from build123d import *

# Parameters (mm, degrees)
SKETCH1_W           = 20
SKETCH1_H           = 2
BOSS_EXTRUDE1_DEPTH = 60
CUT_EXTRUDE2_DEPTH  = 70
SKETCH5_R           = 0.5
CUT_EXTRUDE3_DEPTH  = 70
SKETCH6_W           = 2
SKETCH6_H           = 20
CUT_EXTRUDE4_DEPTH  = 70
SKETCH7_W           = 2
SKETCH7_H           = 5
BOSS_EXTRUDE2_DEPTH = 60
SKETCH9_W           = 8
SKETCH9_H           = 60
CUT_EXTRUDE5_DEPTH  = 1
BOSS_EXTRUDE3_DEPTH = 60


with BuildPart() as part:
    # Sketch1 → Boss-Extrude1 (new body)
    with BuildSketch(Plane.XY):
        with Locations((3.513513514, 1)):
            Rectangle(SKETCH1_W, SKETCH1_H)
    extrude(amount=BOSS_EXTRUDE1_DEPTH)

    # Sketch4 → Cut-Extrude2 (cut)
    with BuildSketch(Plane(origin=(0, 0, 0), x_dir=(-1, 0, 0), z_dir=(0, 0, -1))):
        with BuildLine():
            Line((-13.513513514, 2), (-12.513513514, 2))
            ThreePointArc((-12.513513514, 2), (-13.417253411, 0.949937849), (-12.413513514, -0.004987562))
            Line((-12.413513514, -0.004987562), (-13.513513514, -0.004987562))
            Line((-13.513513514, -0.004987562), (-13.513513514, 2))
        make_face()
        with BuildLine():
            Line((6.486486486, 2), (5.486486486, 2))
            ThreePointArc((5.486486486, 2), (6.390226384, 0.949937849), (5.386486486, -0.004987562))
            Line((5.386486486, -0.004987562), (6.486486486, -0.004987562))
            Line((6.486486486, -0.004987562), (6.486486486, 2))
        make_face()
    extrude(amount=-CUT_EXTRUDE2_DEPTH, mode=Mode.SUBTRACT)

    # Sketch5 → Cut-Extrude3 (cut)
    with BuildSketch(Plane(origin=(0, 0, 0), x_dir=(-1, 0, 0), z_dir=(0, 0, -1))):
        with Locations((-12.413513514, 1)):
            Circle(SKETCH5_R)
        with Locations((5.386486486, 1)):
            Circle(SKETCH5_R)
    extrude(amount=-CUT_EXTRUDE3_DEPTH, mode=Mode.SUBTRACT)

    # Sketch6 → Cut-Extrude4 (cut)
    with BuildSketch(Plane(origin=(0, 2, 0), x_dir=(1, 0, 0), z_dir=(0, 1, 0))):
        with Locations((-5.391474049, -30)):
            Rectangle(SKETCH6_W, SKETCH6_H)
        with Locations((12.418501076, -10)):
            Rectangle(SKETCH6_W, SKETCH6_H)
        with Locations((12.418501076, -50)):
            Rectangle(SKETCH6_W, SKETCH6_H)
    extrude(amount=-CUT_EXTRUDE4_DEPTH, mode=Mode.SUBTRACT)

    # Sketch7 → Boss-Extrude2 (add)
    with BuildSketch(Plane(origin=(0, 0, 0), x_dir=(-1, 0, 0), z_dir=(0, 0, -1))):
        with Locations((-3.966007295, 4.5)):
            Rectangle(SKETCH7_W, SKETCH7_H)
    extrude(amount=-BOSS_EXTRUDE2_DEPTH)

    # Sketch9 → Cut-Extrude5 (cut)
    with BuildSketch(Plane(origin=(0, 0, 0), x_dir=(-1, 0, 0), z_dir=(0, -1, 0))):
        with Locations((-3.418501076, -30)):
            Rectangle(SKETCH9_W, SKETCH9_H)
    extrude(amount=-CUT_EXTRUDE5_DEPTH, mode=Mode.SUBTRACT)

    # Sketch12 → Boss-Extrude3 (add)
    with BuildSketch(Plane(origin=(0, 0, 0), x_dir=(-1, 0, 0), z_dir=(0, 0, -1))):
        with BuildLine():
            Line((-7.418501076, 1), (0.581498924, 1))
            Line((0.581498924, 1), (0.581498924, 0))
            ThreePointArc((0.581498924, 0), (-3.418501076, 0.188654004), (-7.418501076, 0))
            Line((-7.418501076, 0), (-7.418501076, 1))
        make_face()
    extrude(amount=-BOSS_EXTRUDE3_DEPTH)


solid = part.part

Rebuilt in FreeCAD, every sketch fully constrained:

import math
import FreeCAD as App
import Part
import Sketcher
from FreeCAD import Vector
Q = App.Units.Quantity

doc = App.newDocument("Part")
body = doc.addObject("PartDesign::Body", "Body")

# Sketch on XY plane
sketch1 = body.newObject("Sketcher::SketchObject", "Sketch")
sketch1.AttachmentSupport = (doc.getObject("XY_Plane"), [""])
sketch1.MapMode = "FlatFace"
sketch1.addGeometry(Part.LineSegment(Vector(-6.486486, 2, 0), Vector(-6.486486, 0, 0)), False)
sketch1.addGeometry(Part.LineSegment(Vector(-6.486486, 0, 0), Vector(13.513514, 0, 0)), False)
sketch1.addGeometry(Part.LineSegment(Vector(13.513514, 0, 0), Vector(13.513514, 2, 0)), False)
sketch1.addGeometry(Part.LineSegment(Vector(13.513514, 2, 0), Vector(-6.486486, 2, 0)), False)
sketch1.addConstraint(Sketcher.Constraint("Coincident", 0, 2, 1, 1))
sketch1.addConstraint(Sketcher.Constraint("Coincident", 1, 2, 2, 1))
sketch1.addConstraint(Sketcher.Constraint("Coincident", 2, 2, 3, 1))
sketch1.addConstraint(Sketcher.Constraint("Coincident", 3, 2, 0, 1))
sketch1.addConstraint(Sketcher.Constraint("Vertical", 0))
sketch1.addConstraint(Sketcher.Constraint("Horizontal", 1))
sketch1.addConstraint(Sketcher.Constraint("Vertical", 2))
sketch1.addConstraint(Sketcher.Constraint("Horizontal", 3))
sketch1.addConstraint(Sketcher.Constraint("PointOnObject", 0, 2, -1))
sketch1.addConstraint(Sketcher.Constraint("DistanceX", 1, 1, 1, 2, Q("20 mm")))
sketch1.addConstraint(Sketcher.Constraint("DistanceY", 0, 2, 0, 1, Q("2 mm")))
sketch1.addConstraint(Sketcher.Constraint("DistanceX", 0, 2, -1, 1, Q("6.486486 mm")))
pad1 = body.newObject("PartDesign::Pad", "Pad")
pad1.Profile = sketch1
pad1.Length = 60

# Sketch on XY plane
sketch2 = body.newObject("Sketcher::SketchObject", "Sketch001")
sketch2.AttachmentSupport = (doc.getObject("XY_Plane"), [""])
sketch2.MapMode = "FlatFace"
sketch2.addGeometry(Part.LineSegment(Vector(12.513514, 2, 0), Vector(13.513514, 2, 0)), False)
sketch2.addGeometry(Part.LineSegment(Vector(13.513514, 2, 0), Vector(13.513514, -0.004988, 0)), False)
sketch2.addGeometry(Part.LineSegment(Vector(13.513514, -0.004988, 0), Vector(12.413514, -0.004988, 0)), False)
sketch2.addGeometry(Part.ArcOfCircle(Part.Circle(Vector(12.413514, 1, 0), Vector(0, 0, 1), 1.004988), math.radians(-90), math.radians(84.289407)), False)
sketch2.addGeometry(Part.LineSegment(Vector(-6.486486, 2, 0), Vector(-5.486486, 2, 0)), False)
sketch2.addGeometry(Part.ArcOfCircle(Part.Circle(Vector(-5.386486, 1, 0), Vector(0, 0, 1), 1.004988), math.radians(95.710593), math.radians(270)), False)
sketch2.addGeometry(Part.LineSegment(Vector(-5.386486, -0.004988, 0), Vector(-6.486486, -0.004988, 0)), False)
sketch2.addGeometry(Part.LineSegment(Vector(-6.486486, -0.004988, 0), Vector(-6.486486, 2, 0)), False)
sketch2.addConstraint(Sketcher.Constraint("Coincident", 0, 2, 1, 1))
sketch2.addConstraint(Sketcher.Constraint("Coincident", 1, 2, 2, 1))
sketch2.addConstraint(Sketcher.Constraint("Tangent", 2, 2, 3, 1))
sketch2.addConstraint(Sketcher.Constraint("Coincident", 3, 2, 0, 1))
sketch2.addConstraint(Sketcher.Constraint("Coincident", 4, 2, 5, 1))
sketch2.addConstraint(Sketcher.Constraint("Tangent", 5, 2, 6, 1))
sketch2.addConstraint(Sketcher.Constraint("Coincident", 6, 2, 7, 1))
sketch2.addConstraint(Sketcher.Constraint("Coincident", 7, 2, 4, 1))
sketch2.addConstraint(Sketcher.Constraint("Horizontal", 0))
sketch2.addConstraint(Sketcher.Constraint("Vertical", 1))
sketch2.addConstraint(Sketcher.Constraint("Horizontal", 2))
sketch2.addConstraint(Sketcher.Constraint("Horizontal", 4))
sketch2.addConstraint(Sketcher.Constraint("Horizontal", 6))
sketch2.addConstraint(Sketcher.Constraint("Vertical", 7))
sketch2.addConstraint(Sketcher.Constraint("Equal", 3, 5))
sketch2.addConstraint(Sketcher.Constraint("Horizontal", 3, 3, 5, 3))
sketch2.addConstraint(Sketcher.Constraint("Horizontal", 3, 2, 4, 2))
sketch2.addConstraint(Sketcher.Constraint("Equal", 0, 4))
sketch2.addConstraint(Sketcher.Constraint("DistanceX", 0, 1, 0, 2, Q("1 mm")))
sketch2.addConstraint(Sketcher.Constraint("DistanceX", 2, 2, 2, 1, Q("1.1 mm")))
sketch2.addConstraint(Sketcher.Constraint("DistanceY", -1, 1, 3, 3, Q("1 mm")))
sketch2.addConstraint(Sketcher.Constraint("DistanceY", -1, 1, 0, 2, Q("2 mm")))
sketch2.addConstraint(Sketcher.Constraint("DistanceX", 4, 2, 3, 2, Q("18 mm")))
sketch2.addConstraint(Sketcher.Constraint("DistanceX", -1, 1, 3, 3, Q("12.413514 mm")))
pocket1 = body.newObject("PartDesign::Pocket", "Pocket")
pocket1.Profile = sketch2
pocket1.Length = 70
pocket1.Reversed = True

# Sketch on XY plane
sketch3 = body.newObject("Sketcher::SketchObject", "Sketch002")
sketch3.AttachmentSupport = (doc.getObject("XY_Plane"), [""])
sketch3.MapMode = "FlatFace"
sketch3.addGeometry(Part.Circle(Vector(12.413514, 1, 0), Vector(0, 0, 1), 0.5), False)
sketch3.addGeometry(Part.Circle(Vector(-5.386486, 1, 0), Vector(0, 0, 1), 0.5), False)
sketch3.addConstraint(Sketcher.Constraint("Equal", 0, 1))
sketch3.addConstraint(Sketcher.Constraint("Horizontal", 0, 3, 1, 3))
sketch3.addConstraint(Sketcher.Constraint("Diameter", 0, Q("1 mm")))
sketch3.addConstraint(Sketcher.Constraint("DistanceY", -1, 1, 0, 3, Q("1 mm")))
sketch3.addConstraint(Sketcher.Constraint("DistanceX", 1, 3, 0, 3, Q("17.8 mm")))
sketch3.addConstraint(Sketcher.Constraint("DistanceX", -1, 1, 0, 3, Q("12.413514 mm")))
pocket2 = body.newObject("PartDesign::Pocket", "Pocket001")
pocket2.Profile = sketch3
pocket2.Length = 70
pocket2.Reversed = True

# Sketch on XZ plane
sketch4 = body.newObject("Sketcher::SketchObject", "Sketch003")
sketch4.AttachmentSupport = (doc.getObject("XZ_Plane"), [""])
sketch4.MapMode = "FlatFace"
sketch4.AttachmentOffset = App.Placement(Vector(0, 0, -2), App.Rotation())
sketch4.addGeometry(Part.LineSegment(Vector(-6.391474, 20, 0), Vector(-6.391474, 40, 0)), False)
sketch4.addGeometry(Part.LineSegment(Vector(-6.391474, 40, 0), Vector(-4.391474, 40, 0)), False)
sketch4.addGeometry(Part.LineSegment(Vector(-4.391474, 40, 0), Vector(-4.391474, 20, 0)), False)
sketch4.addGeometry(Part.LineSegment(Vector(-4.391474, 20, 0), Vector(-6.391474, 20, 0)), False)
sketch4.addGeometry(Part.LineSegment(Vector(11.418501, 0, 0), Vector(11.418501, 20, 0)), False)
sketch4.addGeometry(Part.LineSegment(Vector(11.418501, 20, 0), Vector(13.418501, 20, 0)), False)
sketch4.addGeometry(Part.LineSegment(Vector(13.418501, 20, 0), Vector(13.418501, 0, 0)), False)
sketch4.addGeometry(Part.LineSegment(Vector(13.418501, 0, 0), Vector(11.418501, 0, 0)), False)
sketch4.addGeometry(Part.LineSegment(Vector(11.418501, 40, 0), Vector(11.418501, 60, 0)), False)
sketch4.addGeometry(Part.LineSegment(Vector(11.418501, 60, 0), Vector(13.418501, 60, 0)), False)
sketch4.addGeometry(Part.LineSegment(Vector(13.418501, 60, 0), Vector(13.418501, 40, 0)), False)
sketch4.addGeometry(Part.LineSegment(Vector(13.418501, 40, 0), Vector(11.418501, 40, 0)), False)
sketch4.addConstraint(Sketcher.Constraint("Coincident", 0, 2, 1, 1))
sketch4.addConstraint(Sketcher.Constraint("Coincident", 1, 2, 2, 1))
sketch4.addConstraint(Sketcher.Constraint("Coincident", 2, 2, 3, 1))
sketch4.addConstraint(Sketcher.Constraint("Coincident", 3, 2, 0, 1))
sketch4.addConstraint(Sketcher.Constraint("Coincident", 4, 2, 5, 1))
sketch4.addConstraint(Sketcher.Constraint("Coincident", 5, 2, 6, 1))
sketch4.addConstraint(Sketcher.Constraint("Coincident", 6, 2, 7, 1))
sketch4.addConstraint(Sketcher.Constraint("Coincident", 7, 2, 4, 1))
sketch4.addConstraint(Sketcher.Constraint("Coincident", 8, 2, 9, 1))
sketch4.addConstraint(Sketcher.Constraint("Coincident", 9, 2, 10, 1))
sketch4.addConstraint(Sketcher.Constraint("Coincident", 10, 2, 11, 1))
sketch4.addConstraint(Sketcher.Constraint("Coincident", 11, 2, 8, 1))
sketch4.addConstraint(Sketcher.Constraint("Vertical", 0))
sketch4.addConstraint(Sketcher.Constraint("Horizontal", 1))
sketch4.addConstraint(Sketcher.Constraint("Vertical", 2))
sketch4.addConstraint(Sketcher.Constraint("Horizontal", 3))
sketch4.addConstraint(Sketcher.Constraint("Vertical", 4))
sketch4.addConstraint(Sketcher.Constraint("Horizontal", 5))
sketch4.addConstraint(Sketcher.Constraint("Vertical", 6))
sketch4.addConstraint(Sketcher.Constraint("Horizontal", 7))
sketch4.addConstraint(Sketcher.Constraint("Vertical", 8))
sketch4.addConstraint(Sketcher.Constraint("Horizontal", 9))
sketch4.addConstraint(Sketcher.Constraint("Vertical", 10))
sketch4.addConstraint(Sketcher.Constraint("Horizontal", 11))
sketch4.addConstraint(Sketcher.Constraint("PointOnObject", 6, 2, -1))
sketch4.addConstraint(Sketcher.Constraint("Horizontal", 3, 2, 4, 2))
sketch4.addConstraint(Sketcher.Constraint("Horizontal", 1, 2, 10, 2))
sketch4.addConstraint(Sketcher.Constraint("Vertical", 7, 2, 8, 2))
sketch4.addConstraint(Sketcher.Constraint("Vertical", 6, 2, 9, 2))
sketch4.addConstraint(Sketcher.Constraint("Equal", 3, 5))
sketch4.addConstraint(Sketcher.Constraint("Equal", 2, 4))
sketch4.addConstraint(Sketcher.Constraint("Equal", 6, 8))
sketch4.addConstraint(Sketcher.Constraint("DistanceX", 1, 1, 1, 2, Q("2 mm")))
sketch4.addConstraint(Sketcher.Constraint("DistanceY", 0, 1, 0, 2, Q("20 mm")))
sketch4.addConstraint(Sketcher.Constraint("DistanceX", -1, 1, 4, 2, Q("11.418501 mm")))
sketch4.addConstraint(Sketcher.Constraint("DistanceX", 0, 2, -1, 1, Q("6.391474 mm")))
pocket3 = body.newObject("PartDesign::Pocket", "Pocket002")
pocket3.Profile = sketch4
pocket3.Length = 70
pocket3.Reversed = True

# Sketch on XY plane
sketch5 = body.newObject("Sketcher::SketchObject", "Sketch004")
sketch5.AttachmentSupport = (doc.getObject("XY_Plane"), [""])
sketch5.MapMode = "FlatFace"
sketch5.addGeometry(Part.LineSegment(Vector(4.966007, 7, 0), Vector(4.966007, 2, 0)), False)
sketch5.addGeometry(Part.LineSegment(Vector(4.966007, 2, 0), Vector(2.966007, 2, 0)), False)
sketch5.addGeometry(Part.LineSegment(Vector(2.966007, 2, 0), Vector(2.966007, 7, 0)), False)
sketch5.addGeometry(Part.LineSegment(Vector(2.966007, 7, 0), Vector(4.966007, 7, 0)), False)
sketch5.addConstraint(Sketcher.Constraint("Coincident", 0, 2, 1, 1))
sketch5.addConstraint(Sketcher.Constraint("Coincident", 1, 2, 2, 1))
sketch5.addConstraint(Sketcher.Constraint("Coincident", 2, 2, 3, 1))
sketch5.addConstraint(Sketcher.Constraint("Coincident", 3, 2, 0, 1))
sketch5.addConstraint(Sketcher.Constraint("Vertical", 0))
sketch5.addConstraint(Sketcher.Constraint("Horizontal", 1))
sketch5.addConstraint(Sketcher.Constraint("Vertical", 2))
sketch5.addConstraint(Sketcher.Constraint("Horizontal", 3))
sketch5.addConstraint(Sketcher.Constraint("DistanceX", 1, 2, 1, 1, Q("2 mm")))
sketch5.addConstraint(Sketcher.Constraint("DistanceY", 0, 2, 0, 1, Q("5 mm")))
sketch5.addConstraint(Sketcher.Constraint("DistanceY", -1, 1, 0, 2, Q("2 mm")))
sketch5.addConstraint(Sketcher.Constraint("DistanceX", -1, 1, 0, 2, Q("4.966007 mm")))
pad2 = body.newObject("PartDesign::Pad", "Pad001")
pad2.Profile = sketch5
pad2.Length = 60

# Sketch on XZ plane
sketch6 = body.newObject("Sketcher::SketchObject", "Sketch005")
sketch6.AttachmentSupport = (doc.getObject("XZ_Plane"), [""])
sketch6.MapMode = "FlatFace"
sketch6.addGeometry(Part.LineSegment(Vector(7.418501, 0, 0), Vector(7.418501, 60, 0)), False)
sketch6.addGeometry(Part.LineSegment(Vector(7.418501, 60, 0), Vector(-0.581499, 60, 0)), False)
sketch6.addGeometry(Part.LineSegment(Vector(-0.581499, 60, 0), Vector(-0.581499, 0, 0)), False)
sketch6.addGeometry(Part.LineSegment(Vector(-0.581499, 0, 0), Vector(7.418501, 0, 0)), False)
sketch6.addConstraint(Sketcher.Constraint("Coincident", 0, 2, 1, 1))
sketch6.addConstraint(Sketcher.Constraint("Coincident", 1, 2, 2, 1))
sketch6.addConstraint(Sketcher.Constraint("Coincident", 2, 2, 3, 1))
sketch6.addConstraint(Sketcher.Constraint("Coincident", 3, 2, 0, 1))
sketch6.addConstraint(Sketcher.Constraint("Vertical", 0))
sketch6.addConstraint(Sketcher.Constraint("Horizontal", 1))
sketch6.addConstraint(Sketcher.Constraint("Vertical", 2))
sketch6.addConstraint(Sketcher.Constraint("Horizontal", 3))
sketch6.addConstraint(Sketcher.Constraint("PointOnObject", 2, 2, -1))
sketch6.addConstraint(Sketcher.Constraint("DistanceX", 1, 2, 1, 1, Q("8 mm")))
sketch6.addConstraint(Sketcher.Constraint("DistanceY", 0, 1, 0, 2, Q("60 mm")))
sketch6.addConstraint(Sketcher.Constraint("DistanceX", -1, 1, 0, 2, Q("7.418501 mm")))
pocket4 = body.newObject("PartDesign::Pocket", "Pocket003")
pocket4.Profile = sketch6
pocket4.Length = 1

# Sketch on XY plane
sketch7 = body.newObject("Sketcher::SketchObject", "Sketch006")
sketch7.AttachmentSupport = (doc.getObject("XY_Plane"), [""])
sketch7.MapMode = "FlatFace"
sketch7.addGeometry(Part.LineSegment(Vector(-0.581499, 1, 0), Vector(7.418501, 1, 0)), False)
sketch7.addGeometry(Part.LineSegment(Vector(7.418501, 1, 0), Vector(7.418501, 0, 0)), False)
sketch7.addGeometry(Part.ArcOfCircle(Part.Circle(Vector(3.418501, -42.311346, 0), Vector(0, 0, 1), 42.5), math.radians(84.599463), math.radians(95.400537)), False)
sketch7.addGeometry(Part.LineSegment(Vector(-0.581499, 0, 0), Vector(-0.581499, 1, 0)), False)
sketch7.addConstraint(Sketcher.Constraint("Coincident", 0, 2, 1, 1))
sketch7.addConstraint(Sketcher.Constraint("Coincident", 1, 2, 2, 1))
sketch7.addConstraint(Sketcher.Constraint("Coincident", 2, 2, 3, 1))
sketch7.addConstraint(Sketcher.Constraint("Coincident", 3, 2, 0, 1))
sketch7.addConstraint(Sketcher.Constraint("Horizontal", 0))
sketch7.addConstraint(Sketcher.Constraint("Vertical", 1))
sketch7.addConstraint(Sketcher.Constraint("Vertical", 3))
sketch7.addConstraint(Sketcher.Constraint("PointOnObject", 1, 2, -1))
sketch7.addConstraint(Sketcher.Constraint("PointOnObject", 2, 2, -1))
sketch7.addConstraint(Sketcher.Constraint("Radius", 2, Q("42.5 mm")))
sketch7.addConstraint(Sketcher.Constraint("DistanceX", 0, 1, 0, 2, Q("8 mm")))
sketch7.addConstraint(Sketcher.Constraint("DistanceY", 1, 2, 1, 1, Q("1 mm")))
sketch7.addConstraint(Sketcher.Constraint("DistanceX", -1, 1, 2, 3, Q("3.418501 mm")))
pad3 = body.newObject("PartDesign::Pad", "Pad002")
pad3.Profile = sketch7
pad3.Length = 60

doc.recompute()
